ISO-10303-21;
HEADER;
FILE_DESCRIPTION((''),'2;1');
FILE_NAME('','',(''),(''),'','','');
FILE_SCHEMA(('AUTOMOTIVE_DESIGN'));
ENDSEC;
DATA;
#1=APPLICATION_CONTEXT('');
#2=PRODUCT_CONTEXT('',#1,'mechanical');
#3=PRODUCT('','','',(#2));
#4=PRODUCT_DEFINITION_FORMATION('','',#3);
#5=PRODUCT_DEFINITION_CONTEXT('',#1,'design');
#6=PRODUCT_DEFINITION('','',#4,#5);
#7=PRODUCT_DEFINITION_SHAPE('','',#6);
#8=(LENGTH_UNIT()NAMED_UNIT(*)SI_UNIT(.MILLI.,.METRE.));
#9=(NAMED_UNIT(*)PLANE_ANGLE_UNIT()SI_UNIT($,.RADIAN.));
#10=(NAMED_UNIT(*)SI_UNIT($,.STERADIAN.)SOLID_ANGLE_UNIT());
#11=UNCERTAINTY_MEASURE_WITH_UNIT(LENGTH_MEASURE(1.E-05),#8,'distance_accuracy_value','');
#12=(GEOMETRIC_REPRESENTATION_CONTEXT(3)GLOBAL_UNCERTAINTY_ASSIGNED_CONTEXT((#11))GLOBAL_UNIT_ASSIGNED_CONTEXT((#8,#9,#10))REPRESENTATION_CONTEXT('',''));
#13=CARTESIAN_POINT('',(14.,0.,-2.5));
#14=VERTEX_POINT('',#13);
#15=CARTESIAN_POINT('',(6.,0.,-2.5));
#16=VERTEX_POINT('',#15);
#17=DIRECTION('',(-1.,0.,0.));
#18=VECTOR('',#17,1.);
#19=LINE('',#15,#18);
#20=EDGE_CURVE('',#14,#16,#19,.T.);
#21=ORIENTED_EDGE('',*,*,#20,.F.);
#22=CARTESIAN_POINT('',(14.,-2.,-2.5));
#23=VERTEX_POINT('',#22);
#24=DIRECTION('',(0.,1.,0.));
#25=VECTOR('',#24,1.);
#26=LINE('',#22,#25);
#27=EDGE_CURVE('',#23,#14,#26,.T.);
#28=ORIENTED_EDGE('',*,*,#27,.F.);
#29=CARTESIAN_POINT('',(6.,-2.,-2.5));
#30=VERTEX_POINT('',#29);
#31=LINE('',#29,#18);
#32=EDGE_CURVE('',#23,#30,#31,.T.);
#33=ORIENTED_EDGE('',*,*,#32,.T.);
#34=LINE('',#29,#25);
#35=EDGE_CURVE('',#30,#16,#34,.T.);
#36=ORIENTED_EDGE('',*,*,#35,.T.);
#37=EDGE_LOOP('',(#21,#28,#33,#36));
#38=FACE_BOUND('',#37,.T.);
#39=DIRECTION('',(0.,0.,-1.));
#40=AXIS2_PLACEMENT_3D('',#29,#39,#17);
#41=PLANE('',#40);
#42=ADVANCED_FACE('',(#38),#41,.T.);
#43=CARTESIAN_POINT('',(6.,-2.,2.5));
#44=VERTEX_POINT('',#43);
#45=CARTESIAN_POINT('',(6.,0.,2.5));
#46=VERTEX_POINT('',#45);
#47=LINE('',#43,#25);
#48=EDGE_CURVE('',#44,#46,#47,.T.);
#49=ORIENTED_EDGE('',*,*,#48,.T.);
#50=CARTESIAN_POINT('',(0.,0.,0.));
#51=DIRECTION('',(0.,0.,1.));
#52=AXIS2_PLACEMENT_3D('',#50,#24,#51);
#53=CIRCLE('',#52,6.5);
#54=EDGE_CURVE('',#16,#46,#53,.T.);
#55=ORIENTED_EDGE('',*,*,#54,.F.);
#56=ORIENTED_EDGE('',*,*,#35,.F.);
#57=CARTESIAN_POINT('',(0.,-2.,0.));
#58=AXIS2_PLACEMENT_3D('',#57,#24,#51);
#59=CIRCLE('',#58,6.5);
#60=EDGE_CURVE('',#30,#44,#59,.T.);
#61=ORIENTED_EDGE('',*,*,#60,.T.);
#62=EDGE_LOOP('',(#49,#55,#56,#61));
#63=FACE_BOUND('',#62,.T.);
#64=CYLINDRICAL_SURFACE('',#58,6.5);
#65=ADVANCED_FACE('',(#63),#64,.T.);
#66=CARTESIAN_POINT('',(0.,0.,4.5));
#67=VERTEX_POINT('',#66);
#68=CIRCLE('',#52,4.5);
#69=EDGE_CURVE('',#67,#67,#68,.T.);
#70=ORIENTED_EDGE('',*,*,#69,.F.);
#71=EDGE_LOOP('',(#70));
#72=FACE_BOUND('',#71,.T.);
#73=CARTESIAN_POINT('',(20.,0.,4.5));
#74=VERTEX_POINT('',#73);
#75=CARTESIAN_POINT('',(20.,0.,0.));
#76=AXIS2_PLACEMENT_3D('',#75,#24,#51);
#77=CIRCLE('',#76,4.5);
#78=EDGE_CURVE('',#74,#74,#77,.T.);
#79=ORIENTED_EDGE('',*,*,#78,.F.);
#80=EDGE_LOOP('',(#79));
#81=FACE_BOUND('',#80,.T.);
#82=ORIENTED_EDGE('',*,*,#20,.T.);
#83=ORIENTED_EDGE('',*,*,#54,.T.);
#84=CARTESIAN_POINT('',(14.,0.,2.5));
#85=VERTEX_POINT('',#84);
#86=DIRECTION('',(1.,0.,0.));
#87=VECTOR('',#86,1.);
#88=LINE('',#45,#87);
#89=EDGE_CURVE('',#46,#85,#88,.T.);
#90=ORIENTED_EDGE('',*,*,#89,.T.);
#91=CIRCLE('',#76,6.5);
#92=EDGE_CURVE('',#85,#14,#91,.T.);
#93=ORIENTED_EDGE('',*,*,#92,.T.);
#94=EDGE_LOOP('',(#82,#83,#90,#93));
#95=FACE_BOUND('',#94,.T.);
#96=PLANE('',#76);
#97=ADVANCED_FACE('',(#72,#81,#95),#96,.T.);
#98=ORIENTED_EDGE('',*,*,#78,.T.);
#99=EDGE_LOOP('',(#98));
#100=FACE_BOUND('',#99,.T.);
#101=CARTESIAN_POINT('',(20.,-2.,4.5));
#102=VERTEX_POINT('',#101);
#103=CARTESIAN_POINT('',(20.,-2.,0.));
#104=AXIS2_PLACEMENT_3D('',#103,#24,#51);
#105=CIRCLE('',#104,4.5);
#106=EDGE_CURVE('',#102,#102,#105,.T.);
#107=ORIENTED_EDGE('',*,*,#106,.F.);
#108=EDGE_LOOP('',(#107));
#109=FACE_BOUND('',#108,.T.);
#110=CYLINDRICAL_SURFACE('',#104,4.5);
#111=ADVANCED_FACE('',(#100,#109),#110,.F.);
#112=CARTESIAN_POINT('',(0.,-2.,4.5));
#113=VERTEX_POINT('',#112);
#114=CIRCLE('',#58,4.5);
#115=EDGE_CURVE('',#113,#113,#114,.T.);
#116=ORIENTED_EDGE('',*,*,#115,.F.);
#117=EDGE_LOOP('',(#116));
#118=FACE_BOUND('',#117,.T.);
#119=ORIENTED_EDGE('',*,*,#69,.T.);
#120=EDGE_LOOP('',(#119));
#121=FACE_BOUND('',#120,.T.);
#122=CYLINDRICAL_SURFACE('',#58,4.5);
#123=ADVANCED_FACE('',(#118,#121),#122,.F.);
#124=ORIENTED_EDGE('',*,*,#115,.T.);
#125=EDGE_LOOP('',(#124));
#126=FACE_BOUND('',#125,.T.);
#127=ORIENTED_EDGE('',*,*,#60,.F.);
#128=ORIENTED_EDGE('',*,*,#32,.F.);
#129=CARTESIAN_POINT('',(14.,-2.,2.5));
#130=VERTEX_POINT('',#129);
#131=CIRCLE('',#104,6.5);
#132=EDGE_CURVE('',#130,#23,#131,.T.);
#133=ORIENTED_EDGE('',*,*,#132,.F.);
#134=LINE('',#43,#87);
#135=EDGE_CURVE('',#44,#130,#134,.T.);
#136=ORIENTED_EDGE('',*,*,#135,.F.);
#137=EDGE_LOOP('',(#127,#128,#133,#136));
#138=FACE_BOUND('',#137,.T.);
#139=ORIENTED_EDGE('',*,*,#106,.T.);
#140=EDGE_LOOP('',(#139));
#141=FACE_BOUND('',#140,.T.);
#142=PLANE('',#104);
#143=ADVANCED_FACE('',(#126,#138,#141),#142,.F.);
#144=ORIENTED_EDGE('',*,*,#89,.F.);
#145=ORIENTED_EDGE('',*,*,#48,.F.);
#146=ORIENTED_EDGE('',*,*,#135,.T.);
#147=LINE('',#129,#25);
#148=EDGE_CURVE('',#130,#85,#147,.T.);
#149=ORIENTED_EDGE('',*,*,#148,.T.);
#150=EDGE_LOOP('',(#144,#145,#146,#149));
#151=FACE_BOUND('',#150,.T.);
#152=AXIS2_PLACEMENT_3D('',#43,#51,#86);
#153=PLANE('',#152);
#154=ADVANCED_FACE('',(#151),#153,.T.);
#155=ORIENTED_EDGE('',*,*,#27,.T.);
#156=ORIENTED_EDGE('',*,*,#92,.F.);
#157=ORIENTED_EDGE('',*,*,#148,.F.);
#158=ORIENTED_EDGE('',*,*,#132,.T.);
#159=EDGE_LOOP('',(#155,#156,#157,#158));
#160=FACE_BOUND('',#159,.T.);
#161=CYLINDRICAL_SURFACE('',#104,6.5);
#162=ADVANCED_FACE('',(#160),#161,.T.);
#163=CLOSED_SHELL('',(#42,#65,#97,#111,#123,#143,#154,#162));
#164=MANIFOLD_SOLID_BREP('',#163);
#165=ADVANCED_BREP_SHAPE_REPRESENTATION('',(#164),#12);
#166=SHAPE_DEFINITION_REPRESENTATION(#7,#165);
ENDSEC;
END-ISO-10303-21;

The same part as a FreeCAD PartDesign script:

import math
import FreeCAD as App
import Part
import Sketcher
from FreeCAD import Vector
Q = App.Units.Quantity

doc = App.newDocument("Part")
body = doc.addObject("PartDesign::Body", "Body")

sketch1 = doc.addObject("Sketcher::SketchObject", "Sketch")
body.addObject(sketch1)
sketch1.AttachmentSupport = (doc.XZ_Plane, [""])
sketch1.MapMode = "FlatFace"
sketch1.addGeometry(Part.LineSegment(Vector(6, 2, 0), Vector(14, 2, 0)), False)
sketch1.addGeometry(Part.ArcOfCircle(Part.Circle(Vector(20, 0, 0), Vector(0, 0, 1), 6), math.radians(-157), math.radians(157)), False)
sketch1.addGeometry(Part.LineSegment(Vector(14, -2, 0), Vector(6, -2, 0)), False)
sketch1.addGeometry(Part.ArcOfCircle(Part.Circle(Vector(0, 0, 0), Vector(0, 0, 1), 6), math.radians(23), math.radians(337)), False)
sketch1.addConstraint(Sketcher.Constraint("Coincident", 0, 2, 1, 2))
sketch1.addConstraint(Sketcher.Constraint("Coincident", 1, 1, 2, 1))
sketch1.addConstraint(Sketcher.Constraint("Coincident", 2, 2, 3, 2))
sketch1.addConstraint(Sketcher.Constraint("Coincident", 3, 1, 0, 1))
sketch1.addConstraint(Sketcher.Constraint("Horizontal", 0))
sketch1.addConstraint(Sketcher.Constraint("Horizontal", 2))
sketch1.addConstraint(Sketcher.Constraint("Coincident", 3, 3, -1, 1))
sketch1.addConstraint(Sketcher.Constraint("Equal", 1, 3))
sketch1.addConstraint(Sketcher.Constraint("Symmetric", 0, 2, 1, 1, -1))
sketch1.addConstraint(Sketcher.Constraint("Radius", 1, Q("6.5 mm")))
sketch1.addConstraint(Sketcher.Constraint("DistanceX", 0, 1, 0, 2, Q("8 mm")))
sketch1.addConstraint(Sketcher.Constraint("DistanceX", -1, 1, 1, 3, Q("20 mm")))
pad1 = doc.addObject("PartDesign::Pad", "Pad")
body.addObject(pad1)
pad1.Profile = sketch1
pad1.Length = 2

sketch2 = doc.addObject("Sketcher::SketchObject", "Sketch001")
body.addObject(sketch2)
sketch2.AttachmentSupport = (doc.XZ_Plane, [""])
sketch2.MapMode = "FlatFace"
sketch2.addGeometry(Part.Circle(Vector(0, 0, 0), Vector(0, 0, 1), 4.5), False)
sketch2.addGeometry(Part.Circle(Vector(20, 0, 0), Vector(0, 0, 1), 4.5), False)
sketch2.addConstraint(Sketcher.Constraint("Coincident", 0, 3, -1, 1))
sketch2.addConstraint(Sketcher.Constraint("Equal", 0, 1))
sketch2.addConstraint(Sketcher.Constraint("PointOnObject", 1, 3, -1))
sketch2.addConstraint(Sketcher.Constraint("Diameter", 0, Q("9 mm")))
sketch2.addConstraint(Sketcher.Constraint("DistanceX", -1, 1, 1, 3, Q("20 mm")))
pocket1 = doc.addObject("PartDesign::Pocket", "Pocket")
body.addObject(pocket1)
pocket1.Profile = sketch2
pocket1.Length = 2
pocket1.Reversed = True

doc.recompute()
